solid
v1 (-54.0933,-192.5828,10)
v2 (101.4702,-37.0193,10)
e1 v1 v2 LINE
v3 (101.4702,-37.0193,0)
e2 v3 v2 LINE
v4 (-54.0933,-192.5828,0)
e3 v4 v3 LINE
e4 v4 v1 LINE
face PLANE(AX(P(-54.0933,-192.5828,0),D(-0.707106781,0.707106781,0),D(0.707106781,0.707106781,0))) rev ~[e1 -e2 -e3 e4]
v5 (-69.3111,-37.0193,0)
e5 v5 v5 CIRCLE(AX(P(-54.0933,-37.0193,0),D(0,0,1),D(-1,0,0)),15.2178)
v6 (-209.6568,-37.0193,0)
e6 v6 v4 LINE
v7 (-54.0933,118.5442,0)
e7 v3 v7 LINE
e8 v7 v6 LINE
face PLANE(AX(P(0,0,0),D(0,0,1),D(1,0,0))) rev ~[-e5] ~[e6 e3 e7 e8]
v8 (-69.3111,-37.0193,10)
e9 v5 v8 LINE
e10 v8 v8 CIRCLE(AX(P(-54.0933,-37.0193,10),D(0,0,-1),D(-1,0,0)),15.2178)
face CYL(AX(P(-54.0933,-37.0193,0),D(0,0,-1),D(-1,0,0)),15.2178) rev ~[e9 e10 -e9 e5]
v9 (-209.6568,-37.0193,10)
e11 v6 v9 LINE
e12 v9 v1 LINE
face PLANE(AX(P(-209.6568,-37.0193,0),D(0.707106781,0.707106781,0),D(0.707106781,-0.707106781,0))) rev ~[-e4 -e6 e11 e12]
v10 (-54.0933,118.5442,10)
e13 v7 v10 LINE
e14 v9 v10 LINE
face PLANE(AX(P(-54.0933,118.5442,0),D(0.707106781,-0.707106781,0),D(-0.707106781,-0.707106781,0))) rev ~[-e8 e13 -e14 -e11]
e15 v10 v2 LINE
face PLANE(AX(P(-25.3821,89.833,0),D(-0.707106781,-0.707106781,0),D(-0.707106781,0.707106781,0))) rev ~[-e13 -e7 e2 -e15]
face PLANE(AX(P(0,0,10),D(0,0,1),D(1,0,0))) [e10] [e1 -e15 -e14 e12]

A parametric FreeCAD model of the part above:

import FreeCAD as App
import Part
import Sketcher
from FreeCAD import Vector


def add_polygon(sketch, points):
    """Adds a closed chain of lines whose ends are joined by coincident constraints."""
    first, n = sketch.GeometryCount, len(points)
    for a, b in zip(points, points[1:] + points[:1]):
        sketch.addGeometry(Part.LineSegment(App.Vector(*a, 0), App.Vector(*b, 0)), False)
    for i in range(n):
        sketch.addConstraint(Sketcher.Constraint("Coincident", first + i, 2, first + (i + 1) % n, 1))

doc = App.newDocument("Part")
body = doc.addObject("PartDesign::Body", "Body")

# Sketch on XY plane
sketch1 = doc.addObject("Sketcher::SketchObject", "Sketch")
body.addObject(sketch1)
sketch1.AttachmentSupport = (doc.XY_Plane, [""])
sketch1.MapMode = "FlatFace"
add_polygon(sketch1, [(101, -37), (-54, 119), (-210, -37), (-54, -193)])  # lines 0-3
sketch1.addConstraint(Sketcher.Constraint("Perpendicular", 0, 1))
sketch1.addConstraint(Sketcher.Constraint("Perpendicular", 1, 2))
sketch1.addConstraint(Sketcher.Constraint("Perpendicular", 2, 3))
sketch1.addConstraint(Sketcher.Constraint("Horizontal", 1, 2, 3, 2))
sketch1.addConstraint(Sketcher.Constraint("Vertical", 0, 2, 2, 2))
sketch1.addConstraint(Sketcher.Constraint("Distance", 0, 220.0))
sketch1.addConstraint(Sketcher.Constraint("DistanceX", 0, 2, -1, 1, 54.0933))
sketch1.addConstraint(Sketcher.Constraint("DistanceY", -1, 1, 0, 2, 118.5442))
pad1 = doc.addObject("PartDesign::Pad", "Pad")
body.addObject(pad1)
pad1.Profile = sketch1
pad1.Length = 10

# Sketch on XY plane
sketch2 = doc.addObject("Sketcher::SketchObject", "Sketch001")
body.addObject(sketch2)
sketch2.AttachmentSupport = (doc.XY_Plane, [""])
sketch2.MapMode = "FlatFace"
sketch2.addGeometry(Part.Circle(Vector(-54, -37, 0), Vector(0, 0, 1), 15), False)
sketch2.addConstraint(Sketcher.Constraint("Diameter", 0, 30.4356))
sketch2.addConstraint(Sketcher.Constraint("DistanceX", 0, 3, -1, 1, 54.0933))
sketch2.addConstraint(Sketcher.Constraint("DistanceY", 0, 3, -1, 1, 37.0193))
pocket1 = doc.addObject("PartDesign::Pocket", "Pocket")
body.addObject(pocket1)
pocket1.Profile = sketch2
pocket1.Length = 10
pocket1.Reversed = True

doc.recompute()
